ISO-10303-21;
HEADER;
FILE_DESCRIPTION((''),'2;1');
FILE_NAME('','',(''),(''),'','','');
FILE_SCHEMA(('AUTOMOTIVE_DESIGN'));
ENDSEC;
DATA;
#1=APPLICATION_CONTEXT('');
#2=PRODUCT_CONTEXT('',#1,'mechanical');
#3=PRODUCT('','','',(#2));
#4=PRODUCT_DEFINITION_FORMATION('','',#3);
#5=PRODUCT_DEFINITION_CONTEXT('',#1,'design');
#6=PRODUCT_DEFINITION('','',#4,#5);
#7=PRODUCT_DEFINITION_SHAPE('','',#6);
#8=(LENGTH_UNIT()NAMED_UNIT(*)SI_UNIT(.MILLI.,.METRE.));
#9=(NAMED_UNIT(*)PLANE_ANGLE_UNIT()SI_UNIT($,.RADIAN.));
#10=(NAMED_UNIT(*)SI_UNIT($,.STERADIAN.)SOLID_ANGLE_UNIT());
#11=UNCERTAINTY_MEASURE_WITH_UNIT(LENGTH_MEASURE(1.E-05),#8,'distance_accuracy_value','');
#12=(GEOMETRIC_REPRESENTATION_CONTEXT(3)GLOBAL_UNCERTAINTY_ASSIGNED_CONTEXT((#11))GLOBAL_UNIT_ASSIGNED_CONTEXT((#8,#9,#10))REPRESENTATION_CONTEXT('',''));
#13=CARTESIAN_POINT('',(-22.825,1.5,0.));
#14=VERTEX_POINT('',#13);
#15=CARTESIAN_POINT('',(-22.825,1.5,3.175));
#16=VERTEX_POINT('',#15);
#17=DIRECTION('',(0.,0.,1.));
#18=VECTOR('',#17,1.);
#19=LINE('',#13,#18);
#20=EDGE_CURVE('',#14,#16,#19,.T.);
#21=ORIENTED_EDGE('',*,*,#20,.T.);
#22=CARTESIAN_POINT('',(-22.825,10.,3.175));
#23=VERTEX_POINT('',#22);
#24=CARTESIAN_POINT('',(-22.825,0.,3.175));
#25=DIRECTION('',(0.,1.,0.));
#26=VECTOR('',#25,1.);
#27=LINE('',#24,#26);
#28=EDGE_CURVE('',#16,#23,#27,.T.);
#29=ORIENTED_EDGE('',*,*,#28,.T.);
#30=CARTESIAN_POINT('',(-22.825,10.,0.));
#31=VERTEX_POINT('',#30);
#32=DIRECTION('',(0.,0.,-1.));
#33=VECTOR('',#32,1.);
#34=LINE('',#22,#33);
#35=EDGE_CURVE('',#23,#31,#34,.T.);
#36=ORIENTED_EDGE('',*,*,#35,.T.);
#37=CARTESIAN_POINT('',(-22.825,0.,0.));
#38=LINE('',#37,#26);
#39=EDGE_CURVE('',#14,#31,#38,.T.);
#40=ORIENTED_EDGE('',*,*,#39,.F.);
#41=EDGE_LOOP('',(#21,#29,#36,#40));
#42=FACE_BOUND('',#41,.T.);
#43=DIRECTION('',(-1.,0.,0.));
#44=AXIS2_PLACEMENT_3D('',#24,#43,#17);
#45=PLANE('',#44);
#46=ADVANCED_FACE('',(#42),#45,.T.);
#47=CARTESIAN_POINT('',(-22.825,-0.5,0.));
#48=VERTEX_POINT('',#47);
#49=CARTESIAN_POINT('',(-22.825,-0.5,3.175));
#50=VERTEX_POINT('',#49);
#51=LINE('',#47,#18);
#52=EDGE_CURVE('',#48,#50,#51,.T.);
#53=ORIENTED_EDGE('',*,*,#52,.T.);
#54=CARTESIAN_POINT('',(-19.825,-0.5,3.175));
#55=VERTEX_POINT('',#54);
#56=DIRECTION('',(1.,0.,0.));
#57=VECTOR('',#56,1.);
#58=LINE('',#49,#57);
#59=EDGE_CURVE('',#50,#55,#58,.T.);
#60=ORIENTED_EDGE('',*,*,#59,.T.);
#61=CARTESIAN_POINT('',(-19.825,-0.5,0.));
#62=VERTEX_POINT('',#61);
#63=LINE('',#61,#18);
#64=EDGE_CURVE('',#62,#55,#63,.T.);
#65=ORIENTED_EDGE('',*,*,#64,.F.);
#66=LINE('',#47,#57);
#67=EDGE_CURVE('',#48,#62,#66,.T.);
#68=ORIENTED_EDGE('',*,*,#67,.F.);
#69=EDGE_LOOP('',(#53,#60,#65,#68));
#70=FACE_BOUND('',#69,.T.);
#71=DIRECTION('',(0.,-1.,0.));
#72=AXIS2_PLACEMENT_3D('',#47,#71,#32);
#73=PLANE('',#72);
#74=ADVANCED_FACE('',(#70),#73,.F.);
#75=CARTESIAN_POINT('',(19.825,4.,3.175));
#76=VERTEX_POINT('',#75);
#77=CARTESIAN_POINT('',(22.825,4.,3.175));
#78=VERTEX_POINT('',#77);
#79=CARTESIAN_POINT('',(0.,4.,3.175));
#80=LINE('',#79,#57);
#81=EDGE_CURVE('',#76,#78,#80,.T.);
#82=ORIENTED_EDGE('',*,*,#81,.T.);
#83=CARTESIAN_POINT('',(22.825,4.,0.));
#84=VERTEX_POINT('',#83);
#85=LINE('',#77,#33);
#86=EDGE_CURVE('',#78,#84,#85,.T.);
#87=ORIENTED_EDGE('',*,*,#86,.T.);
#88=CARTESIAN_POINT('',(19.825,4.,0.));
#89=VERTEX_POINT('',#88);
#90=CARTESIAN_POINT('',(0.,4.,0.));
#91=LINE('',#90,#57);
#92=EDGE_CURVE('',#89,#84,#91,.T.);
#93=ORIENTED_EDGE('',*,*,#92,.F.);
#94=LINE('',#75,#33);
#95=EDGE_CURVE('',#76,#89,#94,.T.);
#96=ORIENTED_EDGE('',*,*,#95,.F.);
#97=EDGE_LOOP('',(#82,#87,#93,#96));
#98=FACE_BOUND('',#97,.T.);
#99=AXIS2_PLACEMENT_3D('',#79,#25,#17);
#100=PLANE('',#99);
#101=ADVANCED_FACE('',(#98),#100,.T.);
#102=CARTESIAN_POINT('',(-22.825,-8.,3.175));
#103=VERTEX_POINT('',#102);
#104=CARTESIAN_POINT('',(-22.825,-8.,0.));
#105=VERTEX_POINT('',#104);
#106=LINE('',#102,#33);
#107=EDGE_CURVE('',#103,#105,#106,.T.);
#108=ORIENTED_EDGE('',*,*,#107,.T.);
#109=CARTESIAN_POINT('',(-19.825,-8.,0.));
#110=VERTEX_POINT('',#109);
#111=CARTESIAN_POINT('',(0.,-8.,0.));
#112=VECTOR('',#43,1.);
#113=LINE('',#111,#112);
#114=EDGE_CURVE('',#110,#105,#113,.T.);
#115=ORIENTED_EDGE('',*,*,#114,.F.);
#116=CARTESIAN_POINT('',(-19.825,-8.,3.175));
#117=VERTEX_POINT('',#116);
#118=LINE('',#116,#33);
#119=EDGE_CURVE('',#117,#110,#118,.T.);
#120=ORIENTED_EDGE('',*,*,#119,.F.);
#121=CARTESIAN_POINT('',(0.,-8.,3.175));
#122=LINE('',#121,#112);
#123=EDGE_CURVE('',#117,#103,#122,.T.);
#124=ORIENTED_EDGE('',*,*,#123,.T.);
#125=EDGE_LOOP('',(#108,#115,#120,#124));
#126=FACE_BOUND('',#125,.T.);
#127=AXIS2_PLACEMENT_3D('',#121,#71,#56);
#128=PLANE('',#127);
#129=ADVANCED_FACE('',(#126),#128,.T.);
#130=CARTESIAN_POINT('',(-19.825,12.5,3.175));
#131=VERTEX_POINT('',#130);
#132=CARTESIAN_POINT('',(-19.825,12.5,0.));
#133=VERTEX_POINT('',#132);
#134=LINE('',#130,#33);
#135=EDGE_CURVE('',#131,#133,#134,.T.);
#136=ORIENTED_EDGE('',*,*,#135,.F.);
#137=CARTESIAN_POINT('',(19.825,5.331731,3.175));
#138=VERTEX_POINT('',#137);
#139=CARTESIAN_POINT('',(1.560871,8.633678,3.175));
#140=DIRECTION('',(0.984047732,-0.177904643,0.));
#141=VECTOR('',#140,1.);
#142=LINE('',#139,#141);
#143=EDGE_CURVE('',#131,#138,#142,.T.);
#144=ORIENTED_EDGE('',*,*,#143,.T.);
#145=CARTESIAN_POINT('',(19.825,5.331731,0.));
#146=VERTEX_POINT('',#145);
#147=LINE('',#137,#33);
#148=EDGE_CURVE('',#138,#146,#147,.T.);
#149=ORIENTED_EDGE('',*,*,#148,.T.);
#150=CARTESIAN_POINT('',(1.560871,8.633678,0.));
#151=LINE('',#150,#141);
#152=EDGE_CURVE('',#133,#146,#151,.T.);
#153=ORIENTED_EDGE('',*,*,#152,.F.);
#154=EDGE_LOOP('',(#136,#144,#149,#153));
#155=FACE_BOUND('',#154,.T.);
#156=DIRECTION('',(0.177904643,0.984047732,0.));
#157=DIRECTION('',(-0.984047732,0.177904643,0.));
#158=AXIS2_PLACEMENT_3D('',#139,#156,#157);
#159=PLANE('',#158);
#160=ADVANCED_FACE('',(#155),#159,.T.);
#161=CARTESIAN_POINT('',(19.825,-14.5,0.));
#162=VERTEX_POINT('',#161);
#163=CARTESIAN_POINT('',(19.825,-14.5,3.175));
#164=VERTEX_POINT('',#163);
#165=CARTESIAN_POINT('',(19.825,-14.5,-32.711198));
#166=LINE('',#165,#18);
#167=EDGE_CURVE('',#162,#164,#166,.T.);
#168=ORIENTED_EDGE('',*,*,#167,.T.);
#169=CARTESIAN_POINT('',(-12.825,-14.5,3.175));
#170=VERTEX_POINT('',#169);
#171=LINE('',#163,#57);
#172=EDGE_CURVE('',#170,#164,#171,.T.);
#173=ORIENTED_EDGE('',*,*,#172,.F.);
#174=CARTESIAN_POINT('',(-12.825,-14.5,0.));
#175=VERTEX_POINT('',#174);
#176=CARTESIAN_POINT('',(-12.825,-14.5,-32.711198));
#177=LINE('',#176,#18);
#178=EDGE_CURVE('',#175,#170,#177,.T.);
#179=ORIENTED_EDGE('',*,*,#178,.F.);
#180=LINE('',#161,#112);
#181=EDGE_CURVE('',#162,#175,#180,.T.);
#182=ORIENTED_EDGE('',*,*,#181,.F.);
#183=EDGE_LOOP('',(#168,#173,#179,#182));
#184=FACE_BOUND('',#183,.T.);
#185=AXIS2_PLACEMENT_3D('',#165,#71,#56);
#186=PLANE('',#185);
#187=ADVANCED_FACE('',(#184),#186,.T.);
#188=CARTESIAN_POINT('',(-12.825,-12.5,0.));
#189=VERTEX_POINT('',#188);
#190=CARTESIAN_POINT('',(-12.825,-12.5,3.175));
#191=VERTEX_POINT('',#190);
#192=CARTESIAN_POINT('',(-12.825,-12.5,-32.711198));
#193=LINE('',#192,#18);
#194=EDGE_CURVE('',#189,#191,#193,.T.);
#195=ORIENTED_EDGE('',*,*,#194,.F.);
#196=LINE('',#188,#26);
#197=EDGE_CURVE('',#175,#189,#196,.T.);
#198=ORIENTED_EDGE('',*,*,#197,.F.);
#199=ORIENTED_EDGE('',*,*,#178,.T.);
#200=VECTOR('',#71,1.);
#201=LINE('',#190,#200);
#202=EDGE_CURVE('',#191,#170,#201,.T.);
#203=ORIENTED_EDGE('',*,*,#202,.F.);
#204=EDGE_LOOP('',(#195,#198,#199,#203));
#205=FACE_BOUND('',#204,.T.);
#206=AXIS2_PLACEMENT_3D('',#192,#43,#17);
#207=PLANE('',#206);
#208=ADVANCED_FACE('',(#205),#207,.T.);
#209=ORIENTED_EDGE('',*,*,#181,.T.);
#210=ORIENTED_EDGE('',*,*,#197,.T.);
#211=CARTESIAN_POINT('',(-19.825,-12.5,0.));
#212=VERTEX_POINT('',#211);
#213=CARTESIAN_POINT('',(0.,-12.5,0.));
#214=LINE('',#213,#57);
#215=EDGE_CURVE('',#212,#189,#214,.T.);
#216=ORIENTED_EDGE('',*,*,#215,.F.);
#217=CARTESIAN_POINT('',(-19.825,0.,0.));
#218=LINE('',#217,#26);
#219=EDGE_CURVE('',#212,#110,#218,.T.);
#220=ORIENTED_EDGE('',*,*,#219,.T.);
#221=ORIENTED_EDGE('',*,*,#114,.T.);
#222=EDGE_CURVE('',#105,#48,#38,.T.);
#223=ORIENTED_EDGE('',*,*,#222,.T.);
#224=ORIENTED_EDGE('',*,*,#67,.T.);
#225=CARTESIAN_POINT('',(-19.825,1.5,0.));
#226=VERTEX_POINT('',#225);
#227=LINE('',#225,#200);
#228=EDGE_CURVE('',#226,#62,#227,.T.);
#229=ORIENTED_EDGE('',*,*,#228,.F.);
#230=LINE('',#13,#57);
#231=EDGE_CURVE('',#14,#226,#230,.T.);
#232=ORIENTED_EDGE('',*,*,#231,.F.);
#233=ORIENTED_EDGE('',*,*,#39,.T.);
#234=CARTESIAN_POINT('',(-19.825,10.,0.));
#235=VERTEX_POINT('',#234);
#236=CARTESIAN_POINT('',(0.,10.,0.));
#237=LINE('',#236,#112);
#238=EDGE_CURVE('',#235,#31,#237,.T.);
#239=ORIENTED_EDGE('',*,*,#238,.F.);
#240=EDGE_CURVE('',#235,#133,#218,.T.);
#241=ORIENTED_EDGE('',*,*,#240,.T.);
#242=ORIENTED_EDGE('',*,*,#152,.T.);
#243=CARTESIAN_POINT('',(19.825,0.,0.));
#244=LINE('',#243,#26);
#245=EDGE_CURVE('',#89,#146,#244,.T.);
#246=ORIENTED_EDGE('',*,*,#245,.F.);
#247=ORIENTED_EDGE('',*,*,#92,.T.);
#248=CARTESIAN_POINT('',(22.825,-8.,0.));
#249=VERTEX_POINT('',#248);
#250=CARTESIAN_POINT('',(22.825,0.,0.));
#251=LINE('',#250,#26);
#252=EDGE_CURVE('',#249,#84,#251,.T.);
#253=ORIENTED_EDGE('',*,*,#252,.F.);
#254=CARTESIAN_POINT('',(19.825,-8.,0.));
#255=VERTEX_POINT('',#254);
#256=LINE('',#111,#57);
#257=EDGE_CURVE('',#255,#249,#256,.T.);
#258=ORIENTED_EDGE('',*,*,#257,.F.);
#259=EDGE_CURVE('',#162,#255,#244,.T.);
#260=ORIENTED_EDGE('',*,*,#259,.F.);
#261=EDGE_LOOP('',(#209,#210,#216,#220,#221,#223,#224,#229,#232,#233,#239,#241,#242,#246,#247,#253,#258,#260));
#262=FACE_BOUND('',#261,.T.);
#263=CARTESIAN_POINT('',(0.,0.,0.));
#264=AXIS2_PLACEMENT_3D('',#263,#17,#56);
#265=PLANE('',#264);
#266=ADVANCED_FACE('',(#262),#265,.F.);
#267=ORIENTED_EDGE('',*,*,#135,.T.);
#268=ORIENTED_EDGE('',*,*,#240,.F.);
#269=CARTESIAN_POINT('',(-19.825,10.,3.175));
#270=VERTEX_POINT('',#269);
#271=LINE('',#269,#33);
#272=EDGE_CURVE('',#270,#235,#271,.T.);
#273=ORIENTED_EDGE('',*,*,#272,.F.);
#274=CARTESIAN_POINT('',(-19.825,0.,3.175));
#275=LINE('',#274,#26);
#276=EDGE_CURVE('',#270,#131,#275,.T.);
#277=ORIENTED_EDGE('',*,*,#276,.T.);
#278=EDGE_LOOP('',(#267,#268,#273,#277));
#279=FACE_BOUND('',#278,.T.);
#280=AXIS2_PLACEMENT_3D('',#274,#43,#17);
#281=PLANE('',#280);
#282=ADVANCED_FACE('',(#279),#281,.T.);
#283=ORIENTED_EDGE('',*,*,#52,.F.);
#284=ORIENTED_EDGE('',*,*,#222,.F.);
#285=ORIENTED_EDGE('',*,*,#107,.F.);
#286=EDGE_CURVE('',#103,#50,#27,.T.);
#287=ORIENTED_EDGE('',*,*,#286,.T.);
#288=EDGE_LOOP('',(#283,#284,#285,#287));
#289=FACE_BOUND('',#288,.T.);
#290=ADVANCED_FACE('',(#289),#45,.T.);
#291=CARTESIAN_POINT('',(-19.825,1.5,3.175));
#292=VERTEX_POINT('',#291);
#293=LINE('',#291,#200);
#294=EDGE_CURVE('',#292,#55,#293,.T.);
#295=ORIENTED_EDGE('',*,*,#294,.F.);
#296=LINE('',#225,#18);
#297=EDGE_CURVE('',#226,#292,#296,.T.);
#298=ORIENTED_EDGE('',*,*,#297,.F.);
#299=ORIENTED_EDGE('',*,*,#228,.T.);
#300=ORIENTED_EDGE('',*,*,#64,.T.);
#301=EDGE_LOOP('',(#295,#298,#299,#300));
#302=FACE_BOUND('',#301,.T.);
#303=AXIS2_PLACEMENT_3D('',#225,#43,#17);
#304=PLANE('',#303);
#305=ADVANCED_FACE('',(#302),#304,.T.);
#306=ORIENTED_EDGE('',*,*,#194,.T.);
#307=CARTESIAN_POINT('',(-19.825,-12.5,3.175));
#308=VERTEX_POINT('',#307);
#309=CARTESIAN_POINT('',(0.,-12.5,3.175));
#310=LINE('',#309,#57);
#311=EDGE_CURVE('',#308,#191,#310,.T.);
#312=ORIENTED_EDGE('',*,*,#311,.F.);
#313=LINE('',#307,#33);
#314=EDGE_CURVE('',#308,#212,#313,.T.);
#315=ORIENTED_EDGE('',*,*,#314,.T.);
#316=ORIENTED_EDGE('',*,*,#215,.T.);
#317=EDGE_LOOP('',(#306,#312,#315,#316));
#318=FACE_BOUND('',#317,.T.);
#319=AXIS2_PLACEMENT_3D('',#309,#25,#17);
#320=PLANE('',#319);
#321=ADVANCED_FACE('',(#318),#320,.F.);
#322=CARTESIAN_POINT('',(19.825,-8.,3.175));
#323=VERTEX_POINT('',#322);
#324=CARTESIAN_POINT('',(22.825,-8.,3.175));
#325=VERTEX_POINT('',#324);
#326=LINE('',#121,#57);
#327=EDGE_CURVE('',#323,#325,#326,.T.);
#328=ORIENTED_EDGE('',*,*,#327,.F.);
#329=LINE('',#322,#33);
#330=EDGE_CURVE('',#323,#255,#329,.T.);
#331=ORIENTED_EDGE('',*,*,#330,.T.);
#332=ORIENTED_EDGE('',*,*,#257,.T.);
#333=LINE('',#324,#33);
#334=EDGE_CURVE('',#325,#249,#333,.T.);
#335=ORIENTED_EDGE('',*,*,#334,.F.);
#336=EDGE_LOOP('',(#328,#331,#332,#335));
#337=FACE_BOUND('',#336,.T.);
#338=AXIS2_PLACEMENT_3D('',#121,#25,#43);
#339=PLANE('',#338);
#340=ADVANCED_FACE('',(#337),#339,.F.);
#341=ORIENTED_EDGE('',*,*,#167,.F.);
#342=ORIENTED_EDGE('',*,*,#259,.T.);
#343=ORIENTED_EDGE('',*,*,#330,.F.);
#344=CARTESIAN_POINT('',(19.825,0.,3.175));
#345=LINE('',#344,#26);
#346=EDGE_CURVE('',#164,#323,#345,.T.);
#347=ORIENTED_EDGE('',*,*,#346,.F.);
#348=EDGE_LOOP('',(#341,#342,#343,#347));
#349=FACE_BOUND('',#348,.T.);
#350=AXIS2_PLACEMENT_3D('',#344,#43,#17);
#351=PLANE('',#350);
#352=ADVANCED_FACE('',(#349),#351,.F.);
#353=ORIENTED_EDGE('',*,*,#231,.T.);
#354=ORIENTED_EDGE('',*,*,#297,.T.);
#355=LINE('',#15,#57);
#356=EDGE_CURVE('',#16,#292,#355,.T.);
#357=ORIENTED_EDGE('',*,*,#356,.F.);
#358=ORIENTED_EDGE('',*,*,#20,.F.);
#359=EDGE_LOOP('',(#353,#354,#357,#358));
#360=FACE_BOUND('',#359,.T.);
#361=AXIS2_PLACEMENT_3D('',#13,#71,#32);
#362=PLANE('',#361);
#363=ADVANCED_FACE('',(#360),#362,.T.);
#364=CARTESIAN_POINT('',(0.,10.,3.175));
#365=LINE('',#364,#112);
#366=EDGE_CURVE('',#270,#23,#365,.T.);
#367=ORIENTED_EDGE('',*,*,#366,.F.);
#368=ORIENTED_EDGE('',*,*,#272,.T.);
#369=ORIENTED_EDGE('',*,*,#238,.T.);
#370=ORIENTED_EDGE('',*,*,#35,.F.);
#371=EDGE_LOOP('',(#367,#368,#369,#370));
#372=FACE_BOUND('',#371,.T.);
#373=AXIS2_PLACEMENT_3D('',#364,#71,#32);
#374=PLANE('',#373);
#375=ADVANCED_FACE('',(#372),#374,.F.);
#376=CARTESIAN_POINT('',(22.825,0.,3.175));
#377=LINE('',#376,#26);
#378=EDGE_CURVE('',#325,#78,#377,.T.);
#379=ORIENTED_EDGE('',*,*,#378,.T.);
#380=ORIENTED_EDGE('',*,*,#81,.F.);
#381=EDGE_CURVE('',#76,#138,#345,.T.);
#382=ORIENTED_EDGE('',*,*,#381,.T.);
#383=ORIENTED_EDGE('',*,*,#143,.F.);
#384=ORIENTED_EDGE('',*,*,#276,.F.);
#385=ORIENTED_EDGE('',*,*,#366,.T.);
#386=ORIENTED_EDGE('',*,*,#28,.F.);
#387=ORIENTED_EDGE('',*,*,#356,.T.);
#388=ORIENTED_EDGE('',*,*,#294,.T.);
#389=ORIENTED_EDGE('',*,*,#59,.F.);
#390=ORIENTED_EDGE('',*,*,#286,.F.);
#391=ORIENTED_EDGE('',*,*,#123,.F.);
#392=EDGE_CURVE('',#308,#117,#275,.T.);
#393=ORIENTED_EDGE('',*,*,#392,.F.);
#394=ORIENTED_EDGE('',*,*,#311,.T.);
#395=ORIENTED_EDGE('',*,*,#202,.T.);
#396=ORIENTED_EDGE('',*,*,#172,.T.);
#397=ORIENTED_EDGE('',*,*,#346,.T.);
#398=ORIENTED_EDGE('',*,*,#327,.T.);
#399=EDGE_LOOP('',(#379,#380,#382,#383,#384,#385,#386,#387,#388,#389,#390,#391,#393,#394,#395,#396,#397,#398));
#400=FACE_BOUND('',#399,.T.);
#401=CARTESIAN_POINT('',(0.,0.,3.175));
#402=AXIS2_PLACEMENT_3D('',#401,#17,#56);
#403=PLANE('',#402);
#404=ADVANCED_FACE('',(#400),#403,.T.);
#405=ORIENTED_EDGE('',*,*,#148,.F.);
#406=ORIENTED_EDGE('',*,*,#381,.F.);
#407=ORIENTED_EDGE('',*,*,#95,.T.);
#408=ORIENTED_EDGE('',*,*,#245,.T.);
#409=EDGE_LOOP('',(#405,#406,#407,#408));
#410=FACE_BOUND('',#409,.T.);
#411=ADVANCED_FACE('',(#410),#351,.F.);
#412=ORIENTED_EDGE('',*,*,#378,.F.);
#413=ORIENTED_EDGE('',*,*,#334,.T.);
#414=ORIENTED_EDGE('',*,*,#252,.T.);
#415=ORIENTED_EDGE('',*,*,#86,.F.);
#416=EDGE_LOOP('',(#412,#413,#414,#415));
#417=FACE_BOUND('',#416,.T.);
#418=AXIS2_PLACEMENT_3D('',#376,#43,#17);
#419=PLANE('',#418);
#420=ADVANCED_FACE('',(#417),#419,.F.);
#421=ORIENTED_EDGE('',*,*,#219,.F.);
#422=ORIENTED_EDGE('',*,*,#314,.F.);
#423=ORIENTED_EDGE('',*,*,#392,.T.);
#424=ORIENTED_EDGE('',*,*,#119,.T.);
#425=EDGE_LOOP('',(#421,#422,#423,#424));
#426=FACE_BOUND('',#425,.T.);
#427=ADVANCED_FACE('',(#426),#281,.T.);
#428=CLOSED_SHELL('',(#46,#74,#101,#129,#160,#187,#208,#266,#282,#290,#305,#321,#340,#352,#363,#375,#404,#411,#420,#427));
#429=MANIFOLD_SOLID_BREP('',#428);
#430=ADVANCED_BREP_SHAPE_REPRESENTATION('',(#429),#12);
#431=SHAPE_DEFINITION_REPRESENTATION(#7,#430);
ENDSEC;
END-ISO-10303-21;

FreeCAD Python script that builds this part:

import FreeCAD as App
import Part
import Sketcher
from FreeCAD import Vector
Q = App.Units.Quantity


def add_polygon(sketch, points):
    """Adds a closed chain of lines whose ends are joined by coincident constraints."""
    first, n = sketch.GeometryCount, len(points)
    for a, b in zip(points, points[1:] + points[:1]):
        sketch.addGeometry(Part.LineSegment(App.Vector(*a, 0), App.Vector(*b, 0)), False)
    for i in range(n):
        sketch.addConstraint(Sketcher.Constraint("Coincident", first + i, 2, first + (i + 1) % n, 1))

doc = App.newDocument("Part")
body = doc.addObject("PartDesign::Body", "Body")

sketch1 = body.newObject("Sketcher::SketchObject", "Sketch")
sketch1.AttachmentSupport = (doc.getObject("XY_Plane"), [""])
sketch1.MapMode = "FlatFace"
add_polygon(sketch1, [(19.8, 5.3), (-19.8, 12.5), (-19.8, 10), (-22.8, 10), (-22.8, -8), (-19.8, -8), (-19.8, -12.5), (19.8, -12.5), (19.8, -8), (22.8, -8), (22.8, 4), (19.8, 4)])
sketch1.addConstraint(Sketcher.Constraint("Vertical", 1))
sketch1.addConstraint(Sketcher.Constraint("Horizontal", 2))
sketch1.addConstraint(Sketcher.Constraint("Vertical", 3))
sketch1.addConstraint(Sketcher.Constraint("Horizontal", 4))
sketch1.addConstraint(Sketcher.Constraint("Vertical", 5))
sketch1.addConstraint(Sketcher.Constraint("Horizontal", 6))
sketch1.addConstraint(Sketcher.Constraint("Vertical", 7))
sketch1.addConstraint(Sketcher.Constraint("Horizontal", 8))
sketch1.addConstraint(Sketcher.Constraint("Vertical", 9))
sketch1.addConstraint(Sketcher.Constraint("Horizontal", 10))
sketch1.addConstraint(Sketcher.Constraint("Vertical", 11))
sketch1.addConstraint(Sketcher.Constraint("Symmetric", 0, 2, 6, 2, -1, 1))
sketch1.addConstraint(Sketcher.Constraint("Symmetric", 4, 2, 7, 2, -2))
sketch1.addConstraint(Sketcher.Constraint("Vertical", 7, 2, 10, 2))
sketch1.addConstraint(Sketcher.Constraint("Equal", 4, 8))
sketch1.addConstraint(Sketcher.Constraint("DistanceX", 2, 2, 2, 1, Q("3 mm")))
sketch1.addConstraint(Sketcher.Constraint("DistanceY", 3, 2, 3, 1, Q("18 mm")))
sketch1.addConstraint(Sketcher.Constraint("DistanceY", 9, 1, 9, 2, Q("12 mm")))
sketch1.addConstraint(Sketcher.Constraint("DistanceY", 1, 2, 1, 1, Q("2.5 mm")))
sketch1.addConstraint(Sketcher.Constraint("DistanceY", 5, 2, 5, 1, Q("4.5 mm")))
sketch1.addConstraint(Sketcher.Constraint("DistanceX", 6, 1, 6, 2, Q("39.65 mm")))
sketch1.addConstraint(Sketcher.Constraint("DistanceY", 11, 1, 11, 2, Q("1.331731 mm")))
pad1 = body.newObject("PartDesign::Pad", "Pad")
pad1.Profile = sketch1
pad1.Length = 3.175

sketch2 = body.newObject("Sketcher::SketchObject", "Sketch001")
sketch2.AttachmentSupport = (doc.getObject("XY_Plane"), [""])
sketch2.MapMode = "FlatFace"
sketch2.AttachmentOffset = App.Placement(Vector(0, 0, 3.175), App.Rotation())
add_polygon(sketch2, [(-12.8, -12.5), (-12.8, -14.5), (19.8, -14.5), (19.8, -12.5)])
sketch2.addConstraint(Sketcher.Constraint("Vertical", 0))
sketch2.addConstraint(Sketcher.Constraint("Horizontal", 1))
sketch2.addConstraint(Sketcher.Constraint("Vertical", 2))
sketch2.addConstraint(Sketcher.Constraint("Horizontal", 3))
sketch2.addConstraint(Sketcher.Constraint("DistanceY", 0, 2, 0, 1, Q("2 mm")))
sketch2.addConstraint(Sketcher.Constraint("DistanceX", 1, 1, 1, 2, Q("32.65 mm")))
sketch2.addConstraint(Sketcher.Constraint("DistanceY", 0, 2, -1, 1, Q("14.5 mm")))
sketch2.addConstraint(Sketcher.Constraint("DistanceX", 0, 2, -1, 1, Q("12.825 mm")))
pad2 = body.newObject("PartDesign::Pad", "Pad001")
pad2.Profile = sketch2
pad2.Length = 3.175
pad2.Reversed = True

sketch3 = body.newObject("Sketcher::SketchObject", "Sketch002")
sketch3.AttachmentSupport = (doc.getObject("XY_Plane"), [""])
sketch3.MapMode = "FlatFace"
sketch3.AttachmentOffset = App.Placement(Vector(0, 0, 3.175), App.Rotation())
add_polygon(sketch3, [(-22.8, 1.5), (-22.8, -0.5), (-19.8, -0.5), (-19.8, 1.5)])
sketch3.addConstraint(Sketcher.Constraint("Vertical", 0))
sketch3.addConstraint(Sketcher.Constraint("Horizontal", 1))
sketch3.addConstraint(Sketcher.Constraint("Vertical", 2))
sketch3.addConstraint(Sketcher.Constraint("Horizontal", 3))
sketch3.addConstraint(Sketcher.Constraint("DistanceX", 1, 1, 1, 2, Q("3 mm")))
sketch3.addConstraint(Sketcher.Constraint("DistanceY", 0, 2, 0, 1, Q("2 mm")))
sketch3.addConstraint(Sketcher.Constraint("DistanceY", 0, 2, -1, 1, Q("0.5 mm")))
sketch3.addConstraint(Sketcher.Constraint("DistanceX", 0, 2, -1, 1, Q("22.825 mm")))
pocket1 = body.newObject("PartDesign::Pocket", "Pocket")
pocket1.Profile = sketch3
pocket1.Type = "ThroughAll"
pocket1.Midplane = True

doc.recompute()
